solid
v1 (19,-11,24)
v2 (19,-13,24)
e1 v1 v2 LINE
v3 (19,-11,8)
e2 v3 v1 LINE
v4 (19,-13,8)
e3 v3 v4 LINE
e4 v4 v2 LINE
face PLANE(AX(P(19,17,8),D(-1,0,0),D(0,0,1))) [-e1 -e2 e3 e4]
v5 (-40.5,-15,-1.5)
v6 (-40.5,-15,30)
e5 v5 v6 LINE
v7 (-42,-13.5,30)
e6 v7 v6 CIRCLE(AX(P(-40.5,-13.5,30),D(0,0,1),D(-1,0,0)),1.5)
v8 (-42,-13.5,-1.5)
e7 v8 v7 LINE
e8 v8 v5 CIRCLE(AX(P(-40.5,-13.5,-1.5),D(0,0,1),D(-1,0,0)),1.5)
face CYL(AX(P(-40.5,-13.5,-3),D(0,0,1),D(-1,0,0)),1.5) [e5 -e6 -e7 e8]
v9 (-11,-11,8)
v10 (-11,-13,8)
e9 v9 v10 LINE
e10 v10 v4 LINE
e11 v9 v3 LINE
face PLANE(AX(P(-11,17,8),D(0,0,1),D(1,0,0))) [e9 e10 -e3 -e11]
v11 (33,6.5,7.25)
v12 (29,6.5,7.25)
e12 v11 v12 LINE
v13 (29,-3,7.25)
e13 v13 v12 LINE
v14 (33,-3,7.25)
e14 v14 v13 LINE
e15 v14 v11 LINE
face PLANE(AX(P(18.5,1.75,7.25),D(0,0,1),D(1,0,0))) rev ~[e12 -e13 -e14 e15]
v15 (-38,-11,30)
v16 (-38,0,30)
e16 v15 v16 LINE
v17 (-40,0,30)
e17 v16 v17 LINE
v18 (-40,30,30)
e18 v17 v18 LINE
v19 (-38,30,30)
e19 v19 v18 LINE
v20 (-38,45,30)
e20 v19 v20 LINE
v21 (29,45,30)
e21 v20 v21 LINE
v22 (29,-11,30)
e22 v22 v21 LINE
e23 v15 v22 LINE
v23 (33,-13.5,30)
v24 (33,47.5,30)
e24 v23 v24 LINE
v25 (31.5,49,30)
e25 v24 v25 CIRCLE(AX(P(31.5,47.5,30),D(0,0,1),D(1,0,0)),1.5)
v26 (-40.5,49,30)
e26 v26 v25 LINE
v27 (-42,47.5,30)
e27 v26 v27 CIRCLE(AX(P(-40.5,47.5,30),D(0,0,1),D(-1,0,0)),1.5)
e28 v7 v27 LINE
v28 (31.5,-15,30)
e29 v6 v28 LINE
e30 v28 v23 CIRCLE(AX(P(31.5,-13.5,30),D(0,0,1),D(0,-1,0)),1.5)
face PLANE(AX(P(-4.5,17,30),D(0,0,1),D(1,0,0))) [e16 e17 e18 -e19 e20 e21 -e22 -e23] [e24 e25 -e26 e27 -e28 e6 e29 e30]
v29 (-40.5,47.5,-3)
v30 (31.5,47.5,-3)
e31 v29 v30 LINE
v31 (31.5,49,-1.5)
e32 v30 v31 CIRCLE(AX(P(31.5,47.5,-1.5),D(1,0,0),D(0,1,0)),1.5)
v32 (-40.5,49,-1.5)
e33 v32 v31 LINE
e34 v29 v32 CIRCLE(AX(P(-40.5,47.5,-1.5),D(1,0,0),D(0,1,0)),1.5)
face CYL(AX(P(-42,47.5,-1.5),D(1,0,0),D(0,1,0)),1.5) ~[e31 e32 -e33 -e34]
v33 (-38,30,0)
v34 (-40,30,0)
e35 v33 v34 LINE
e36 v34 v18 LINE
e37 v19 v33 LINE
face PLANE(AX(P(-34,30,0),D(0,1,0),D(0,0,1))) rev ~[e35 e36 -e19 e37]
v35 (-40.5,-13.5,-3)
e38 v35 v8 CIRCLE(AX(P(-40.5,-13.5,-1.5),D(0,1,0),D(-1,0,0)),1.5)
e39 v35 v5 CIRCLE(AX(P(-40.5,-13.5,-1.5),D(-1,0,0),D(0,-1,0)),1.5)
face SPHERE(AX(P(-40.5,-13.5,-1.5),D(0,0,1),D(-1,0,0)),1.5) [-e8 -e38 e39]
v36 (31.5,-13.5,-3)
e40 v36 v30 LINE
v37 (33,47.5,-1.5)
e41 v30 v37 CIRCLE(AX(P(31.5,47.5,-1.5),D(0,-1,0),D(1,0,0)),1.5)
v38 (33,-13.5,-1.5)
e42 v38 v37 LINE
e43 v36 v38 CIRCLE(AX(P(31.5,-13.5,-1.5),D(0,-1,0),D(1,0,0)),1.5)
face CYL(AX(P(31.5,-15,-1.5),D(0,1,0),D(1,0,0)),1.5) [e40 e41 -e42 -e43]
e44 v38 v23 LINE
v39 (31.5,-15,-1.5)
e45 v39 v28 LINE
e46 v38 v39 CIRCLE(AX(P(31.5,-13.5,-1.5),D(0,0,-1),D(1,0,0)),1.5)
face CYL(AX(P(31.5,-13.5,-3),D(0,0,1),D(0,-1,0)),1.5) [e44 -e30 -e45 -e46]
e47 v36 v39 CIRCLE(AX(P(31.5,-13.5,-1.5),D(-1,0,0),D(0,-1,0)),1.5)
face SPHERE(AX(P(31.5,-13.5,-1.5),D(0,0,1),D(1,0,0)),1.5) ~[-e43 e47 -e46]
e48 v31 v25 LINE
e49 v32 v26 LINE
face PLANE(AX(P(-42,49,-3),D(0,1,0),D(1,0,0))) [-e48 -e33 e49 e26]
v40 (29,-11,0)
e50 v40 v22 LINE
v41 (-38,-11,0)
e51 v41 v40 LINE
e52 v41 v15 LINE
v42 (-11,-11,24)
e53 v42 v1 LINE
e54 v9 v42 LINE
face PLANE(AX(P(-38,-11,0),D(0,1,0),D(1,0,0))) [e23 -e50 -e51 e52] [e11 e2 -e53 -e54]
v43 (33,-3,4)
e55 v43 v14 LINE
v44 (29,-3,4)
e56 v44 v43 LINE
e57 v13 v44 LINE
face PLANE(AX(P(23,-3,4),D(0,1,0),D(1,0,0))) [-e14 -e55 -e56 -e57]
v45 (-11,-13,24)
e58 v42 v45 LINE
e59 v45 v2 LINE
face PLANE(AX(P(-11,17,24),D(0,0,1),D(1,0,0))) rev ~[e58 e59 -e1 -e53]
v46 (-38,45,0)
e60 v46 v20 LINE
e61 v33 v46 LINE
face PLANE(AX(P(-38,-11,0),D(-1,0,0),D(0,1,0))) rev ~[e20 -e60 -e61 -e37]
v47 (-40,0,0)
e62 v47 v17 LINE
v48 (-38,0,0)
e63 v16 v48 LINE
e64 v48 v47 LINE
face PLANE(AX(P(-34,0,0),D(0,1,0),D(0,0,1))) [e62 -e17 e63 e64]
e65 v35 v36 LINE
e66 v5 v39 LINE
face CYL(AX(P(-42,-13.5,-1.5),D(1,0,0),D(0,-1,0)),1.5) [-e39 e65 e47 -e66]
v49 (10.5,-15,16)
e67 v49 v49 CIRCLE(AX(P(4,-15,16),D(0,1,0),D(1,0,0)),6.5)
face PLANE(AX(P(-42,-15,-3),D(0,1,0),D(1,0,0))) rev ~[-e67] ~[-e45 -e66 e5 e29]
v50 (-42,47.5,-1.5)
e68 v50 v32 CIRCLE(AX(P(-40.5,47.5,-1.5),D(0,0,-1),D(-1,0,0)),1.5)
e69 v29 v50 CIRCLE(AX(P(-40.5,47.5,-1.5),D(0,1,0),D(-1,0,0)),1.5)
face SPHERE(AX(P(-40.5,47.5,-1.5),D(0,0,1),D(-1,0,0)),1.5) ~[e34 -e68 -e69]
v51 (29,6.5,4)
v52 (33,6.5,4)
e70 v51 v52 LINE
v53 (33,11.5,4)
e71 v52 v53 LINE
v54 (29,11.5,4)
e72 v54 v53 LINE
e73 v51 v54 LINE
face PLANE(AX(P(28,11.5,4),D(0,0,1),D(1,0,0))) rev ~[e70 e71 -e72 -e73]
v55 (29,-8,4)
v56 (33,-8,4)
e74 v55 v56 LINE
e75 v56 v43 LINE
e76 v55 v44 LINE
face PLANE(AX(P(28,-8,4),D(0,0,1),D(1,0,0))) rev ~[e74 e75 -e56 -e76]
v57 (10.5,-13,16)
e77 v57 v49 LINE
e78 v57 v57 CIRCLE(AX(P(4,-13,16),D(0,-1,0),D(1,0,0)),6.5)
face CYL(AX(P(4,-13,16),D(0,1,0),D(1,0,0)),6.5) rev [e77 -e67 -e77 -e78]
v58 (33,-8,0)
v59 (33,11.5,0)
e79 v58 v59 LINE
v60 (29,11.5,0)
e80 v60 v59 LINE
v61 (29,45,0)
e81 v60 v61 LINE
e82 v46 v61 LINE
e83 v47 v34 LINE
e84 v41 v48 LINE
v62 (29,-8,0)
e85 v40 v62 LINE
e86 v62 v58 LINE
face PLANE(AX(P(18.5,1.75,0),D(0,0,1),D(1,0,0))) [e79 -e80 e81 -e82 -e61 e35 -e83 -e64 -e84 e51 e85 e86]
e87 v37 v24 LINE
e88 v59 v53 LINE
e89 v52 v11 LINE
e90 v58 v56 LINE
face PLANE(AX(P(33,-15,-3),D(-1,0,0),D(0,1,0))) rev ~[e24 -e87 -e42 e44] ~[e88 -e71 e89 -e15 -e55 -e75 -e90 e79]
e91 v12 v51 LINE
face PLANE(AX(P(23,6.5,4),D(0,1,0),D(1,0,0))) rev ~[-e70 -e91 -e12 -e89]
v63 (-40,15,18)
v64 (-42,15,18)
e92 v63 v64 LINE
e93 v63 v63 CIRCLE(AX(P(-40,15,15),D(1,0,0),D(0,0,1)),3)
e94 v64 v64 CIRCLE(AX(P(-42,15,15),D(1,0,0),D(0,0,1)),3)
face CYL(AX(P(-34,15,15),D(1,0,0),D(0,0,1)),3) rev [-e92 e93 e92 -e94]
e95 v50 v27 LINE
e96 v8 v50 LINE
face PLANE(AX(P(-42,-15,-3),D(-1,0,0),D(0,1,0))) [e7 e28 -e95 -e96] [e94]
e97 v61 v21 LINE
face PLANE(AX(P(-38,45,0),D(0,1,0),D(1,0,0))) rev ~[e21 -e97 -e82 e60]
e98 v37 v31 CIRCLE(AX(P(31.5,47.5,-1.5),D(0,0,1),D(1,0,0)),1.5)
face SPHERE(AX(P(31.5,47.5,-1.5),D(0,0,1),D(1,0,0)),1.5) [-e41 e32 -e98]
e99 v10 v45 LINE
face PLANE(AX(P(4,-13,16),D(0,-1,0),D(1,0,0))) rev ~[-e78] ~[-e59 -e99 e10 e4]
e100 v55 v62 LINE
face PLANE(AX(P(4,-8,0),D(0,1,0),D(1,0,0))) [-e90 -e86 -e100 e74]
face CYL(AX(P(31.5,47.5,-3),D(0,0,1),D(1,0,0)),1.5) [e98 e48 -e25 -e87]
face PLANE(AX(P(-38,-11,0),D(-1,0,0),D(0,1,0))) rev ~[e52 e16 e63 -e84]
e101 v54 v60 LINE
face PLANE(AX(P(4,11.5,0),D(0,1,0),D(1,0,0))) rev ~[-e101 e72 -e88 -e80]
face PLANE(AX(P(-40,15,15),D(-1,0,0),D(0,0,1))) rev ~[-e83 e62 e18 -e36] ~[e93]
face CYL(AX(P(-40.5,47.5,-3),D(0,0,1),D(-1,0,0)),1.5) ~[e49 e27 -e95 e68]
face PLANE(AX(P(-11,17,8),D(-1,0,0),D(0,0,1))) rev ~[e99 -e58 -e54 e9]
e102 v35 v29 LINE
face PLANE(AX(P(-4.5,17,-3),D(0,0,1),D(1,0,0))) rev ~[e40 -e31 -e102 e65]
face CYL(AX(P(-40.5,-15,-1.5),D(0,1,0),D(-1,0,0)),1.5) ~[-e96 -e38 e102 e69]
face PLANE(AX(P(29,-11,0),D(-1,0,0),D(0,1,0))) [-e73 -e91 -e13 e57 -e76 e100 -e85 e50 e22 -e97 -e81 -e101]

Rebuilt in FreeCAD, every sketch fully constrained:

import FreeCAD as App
import Part
import Sketcher
from FreeCAD import Vector
Q = App.Units.Quantity


def add_polygon(sketch, points):
    """Adds a closed chain of lines whose ends are joined by coincident constraints."""
    first, n = sketch.GeometryCount, len(points)
    for a, b in zip(points, points[1:] + points[:1]):
        sketch.addGeometry(Part.LineSegment(App.Vector(*a, 0), App.Vector(*b, 0)), False)
    for i in range(n):
        sketch.addConstraint(Sketcher.Constraint("Coincident", first + i, 2, first + (i + 1) % n, 1))

doc = App.newDocument("Part")
body = doc.addObject("PartDesign::Body", "Body")

sketch1 = body.newObject("Sketcher::SketchObject", "Sketch")
sketch1.AttachmentSupport = (doc.getObject("XY_Plane"), [""])
sketch1.MapMode = "FlatFace"
sketch1.addGeometry(Part.Circle(Vector(15, 15, 0), Vector(0, 0, 1), 3), False)
sketch1.addConstraint([
    Sketcher.Constraint("Diameter", 0, Q("6 mm")),
    Sketcher.Constraint("DistanceX", -1, 1, 0, 3, Q("15 mm")),
    Sketcher.Constraint("DistanceY", -1, 1, 0, 3, Q("15 mm")),
])
pad1 = body.newObject("PartDesign::Pad", "Pad")
pad1.Profile = sketch1
pad1.Length = 10
body2 = doc.addObject("PartDesign::Body", "Body001")

sketch2 = body2.newObject("Sketcher::SketchObject", "Sketch001")
sketch2.AttachmentSupport = (doc.getObject("XY_Plane001"), [""])
sketch2.MapMode = "FlatFace"
add_polygon(sketch2, [(0, 30), (0, 0), (30, 0), (30, 30)])
sketch2.addConstraint([
    Sketcher.Constraint("Vertical", 0),
    Sketcher.Constraint("Horizontal", 1),
    Sketcher.Constraint("Vertical", 2),
    Sketcher.Constraint("Horizontal", 3),
    Sketcher.Constraint("Coincident", 0, 2, -1, 1),
    Sketcher.Constraint("Equal", 3, 0),
    Sketcher.Constraint("DistanceX", 1, 1, 1, 2, Q("30 mm")),
])
pad2 = body2.newObject("PartDesign::Pad", "Pad001")
pad2.Profile = sketch2
pad2.Length = 6
doc.recompute()

boolean = body2.newObject("PartDesign::Boolean", "Boolean")
boolean.Type = "Fuse"
boolean.addObjects([body])
body3 = doc.addObject("PartDesign::Body", "Body002")
doc.recompute()

body2.Placement = App.Placement(Vector(-34, 0, 0), App.Rotation(Vector(0, 1, 0), 270))
boolean2 = body3.newObject("PartDesign::Boolean", "Boolean001")
boolean2.Type = "Fuse"
boolean2.addObjects([body2])
body4 = doc.addObject("PartDesign::Body", "Body003")

sketch3 = body4.newObject("Sketcher::SketchObject", "Sketch002")
sketch3.AttachmentSupport = (doc.getObject("XY_Plane003"), [""])
sketch3.MapMode = "FlatFace"
add_polygon(sketch3, [(-30, 11), (-30, -7), (-2, -7), (-2, 11)])
sketch3.addConstraint([
    Sketcher.Constraint("Vertical", 0),
    Sketcher.Constraint("Horizontal", 1),
    Sketcher.Constraint("Vertical", 2),
    Sketcher.Constraint("Horizontal", 3),
    Sketcher.Constraint("DistanceX", 1, 1, 1, 2, Q("28 mm")),
    Sketcher.Constraint("DistanceY", 0, 2, 0, 1, Q("18 mm")),
    Sketcher.Constraint("DistanceX", 0, 2, -1, 1, Q("30 mm")),
    Sketcher.Constraint("DistanceY", 0, 2, -1, 1, Q("7 mm")),
])
pad3 = body4.newObject("PartDesign::Pad", "Pad002")
pad3.Profile = sketch3
pad3.Length = 12.2
body5 = doc.addObject("PartDesign::Body", "Body004")

sketch4 = body5.newObject("Sketcher::SketchObject", "Sketch003")
sketch4.AttachmentSupport = (doc.getObject("XY_Plane004"), [""])
sketch4.MapMode = "FlatFace"
sketch4.AttachmentOffset = App.Placement(Vector(0, 0, 4), App.Rotation())
add_polygon(sketch4, [(19, 24), (19, 14), (29, 14), (29, 24)])
sketch4.addConstraint([
    Sketcher.Constraint("Vertical", 0),
    Sketcher.Constraint("Horizontal", 1),
    Sketcher.Constraint("Vertical", 2),
    Sketcher.Constraint("Horizontal", 3),
    Sketcher.Constraint("Equal", 3, 0),
    Sketcher.Constraint("DistanceX", 1, 1, 1, 2, Q("10 mm")),
    Sketcher.Constraint("DistanceX", -1, 1, 0, 2, Q("19 mm")),
    Sketcher.Constraint("DistanceY", -1, 1, 0, 2, Q("14.5 mm")),
])
pad4 = body5.newObject("PartDesign::Pad", "Pad003")
pad4.Profile = sketch4
pad4.Length = 10
body6 = doc.addObject("PartDesign::Body", "Body005")

sketch5 = body6.newObject("Sketcher::SketchObject", "Sketch004")
sketch5.AttachmentSupport = (doc.getObject("XY_Plane005"), [""])
sketch5.MapMode = "FlatFace"
sketch5.AttachmentOffset = App.Placement(Vector(0, 0, 4), App.Rotation())
add_polygon(sketch5, [(19, 5), (19, -5), (29, -5), (29, 5)])
sketch5.addConstraint([
    Sketcher.Constraint("Vertical", 0),
    Sketcher.Constraint("Horizontal", 1),
    Sketcher.Constraint("Vertical", 2),
    Sketcher.Constraint("Horizontal", 3),
    Sketcher.Constraint("Equal", 3, 0),
    Sketcher.Constraint("DistanceX", 1, 1, 1, 2, Q("10 mm")),
    Sketcher.Constraint("DistanceX", -1, 1, 0, 2, Q("19 mm")),
    Sketcher.Constraint("DistanceY", 0, 2, -1, 1, Q("5 mm")),
])
pad5 = body6.newObject("PartDesign::Pad", "Pad004")
pad5.Profile = sketch5
pad5.Length = 10
body7 = doc.addObject("PartDesign::Body", "Body006")

sketch6 = body7.newObject("Sketcher::SketchObject", "Sketch005")
sketch6.AttachmentSupport = (doc.getObject("XY_Plane006"), [""])
sketch6.MapMode = "FlatFace"
sketch6.AttachmentOffset = App.Placement(Vector(0, 0, 1.75), App.Rotation())
add_polygon(sketch6, [(28, 14), (28, 6), (38, 6), (38, 14)])
sketch6.addConstraint([
    Sketcher.Constraint("Vertical", 0),
    Sketcher.Constraint("Horizontal", 1),
    Sketcher.Constraint("Vertical", 2),
    Sketcher.Constraint("Horizontal", 3),
    Sketcher.Constraint("DistanceX", 1, 1, 1, 2, Q("10 mm")),
    Sketcher.Constraint("DistanceY", 0, 2, 0, 1, Q("8 mm")),
    Sketcher.Constraint("DistanceX", -1, 1, 0, 2, Q("28 mm")),
    Sketcher.Constraint("DistanceY", -1, 1, 0, 2, Q("5.75 mm")),
])
pad6 = body7.newObject("PartDesign::Pad", "Pad005")
pad6.Profile = sketch6
pad6.Length = 4
body8 = doc.addObject("PartDesign::Body", "Body007")

sketch7 = body8.newObject("Sketcher::SketchObject", "Sketch006")
sketch7.AttachmentSupport = (doc.getObject("XY_Plane007"), [""])
sketch7.MapMode = "FlatFace"
add_polygon(sketch7, [(0, 20), (0, 0), (29, 0), (29, 20)])
sketch7.addConstraint([
    Sketcher.Constraint("Vertical", 0),
    Sketcher.Constraint("Horizontal", 1),
    Sketcher.Constraint("Vertical", 2),
    Sketcher.Constraint("Horizontal", 3),
    Sketcher.Constraint("Coincident", 0, 2, -1, 1),
    Sketcher.Constraint("DistanceX", 1, 1, 1, 2, Q("29 mm")),
    Sketcher.Constraint("DistanceY", 0, 2, 0, 1, Q("19.5 mm")),
])
pad7 = body8.newObject("PartDesign::Pad", "Pad006")
pad7.Profile = sketch7
pad7.Length = 7.25
doc.recompute()

boolean3 = body8.newObject("PartDesign::Boolean", "Boolean002")
boolean3.Type = "Fuse"
boolean3.addObjects([body7])
doc.recompute()

boolean4 = body8.newObject("PartDesign::Boolean", "Boolean003")
boolean4.Type = "Cut"
boolean4.addObjects([body6])
doc.recompute()

boolean5 = body8.newObject("PartDesign::Boolean", "Boolean004")
boolean5.Type = "Cut"
boolean5.addObjects([body5])
body9 = doc.addObject("PartDesign::Body", "Body008")
doc.recompute()

body8.Placement = App.Placement(Vector(4, -8, 0), App.Rotation(Vector(0, 0, 1), 0))
boolean6 = body9.newObject("PartDesign::Boolean", "Boolean005")
boolean6.Type = "Fuse"
boolean6.addObjects([body8])
body10 = doc.addObject("PartDesign::Body", "Body009")

sketch8 = body10.newObject("Sketcher::SketchObject", "Sketch007")
sketch8.AttachmentSupport = (doc.getObject("XY_Plane009"), [""])
sketch8.MapMode = "FlatFace"
sketch8.AttachmentOffset = App.Placement(Vector(0, 0, 19), App.Rotation())
sketch8.addGeometry(Part.Circle(Vector(0, 0, 0), Vector(0, 0, 1), 3.6), False)
sketch8.addConstraint([
    Sketcher.Constraint("Coincident", 0, 3, -1, 1),
    Sketcher.Constraint("Diameter", 0, Q("7.2 mm")),
])
pad8 = body10.newObject("PartDesign::Pad", "Pad007")
pad8.Profile = sketch8
pad8.Length = 6.7
body11 = doc.addObject("PartDesign::Body", "Body010")

sketch9 = body11.newObject("Sketcher::SketchObject", "Sketch008")
sketch9.AttachmentSupport = (doc.getObject("XY_Plane010"), [""])
sketch9.MapMode = "FlatFace"
sketch9.addGeometry(Part.Circle(Vector(0, 0, 0), Vector(0, 0, 1), 4.7), False)
sketch9.addConstraint([
    Sketcher.Constraint("Coincident", 0, 3, -1, 1),
    Sketcher.Constraint("Diameter", 0, Q("9.3 mm")),
])
pad9 = body11.newObject("PartDesign::Pad", "Pad008")
pad9.Profile = sketch9
pad9.Length = 19
doc.recompute()

boolean7 = body11.newObject("PartDesign::Boolean", "Boolean006")
boolean7.Type = "Fuse"
boolean7.addObjects([body10])
body12 = doc.addObject("PartDesign::Body", "Body011")
doc.recompute()

body11.Placement = App.Placement(Vector(3, 35, 12), App.Rotation(Vector(0, 0, 1), 0))
boolean8 = body12.newObject("PartDesign::Boolean", "Boolean007")
boolean8.Type = "Fuse"
boolean8.addObjects([body11])
body13 = doc.addObject("PartDesign::Body", "Body012")

sketch10 = body13.newObject("Sketcher::SketchObject", "Sketch009")
sketch10.AttachmentSupport = (doc.getObject("XY_Plane012"), [""])
sketch10.MapMode = "FlatFace"
sketch10.AttachmentOffset = App.Placement(Vector(0, 0, 19), App.Rotation())
sketch10.addGeometry(Part.Circle(Vector(0, 0, 0), Vector(0, 0, 1), 3.6), False)
sketch10.addConstraint([
    Sketcher.Constraint("Coincident", 0, 3, -1, 1),
    Sketcher.Constraint("Diameter", 0, Q("7.2 mm")),
])
pad10 = body13.newObject("PartDesign::Pad", "Pad009")
pad10.Profile = sketch10
pad10.Length = 6.7
body14 = doc.addObject("PartDesign::Body", "Body013")

sketch11 = body14.newObject("Sketcher::SketchObject", "Sketch010")
sketch11.AttachmentSupport = (doc.getObject("XY_Plane013"), [""])
sketch11.MapMode = "FlatFace"
sketch11.addGeometry(Part.Circle(Vector(0, 0, 0), Vector(0, 0, 1), 4.7), False)
sketch11.addConstraint([
    Sketcher.Constraint("Coincident", 0, 3, -1, 1),
    Sketcher.Constraint("Diameter", 0, Q("9.3 mm")),
])
pad11 = body14.newObject("PartDesign::Pad", "Pad010")
pad11.Profile = sketch11
pad11.Length = 19
doc.recompute()

boolean9 = body14.newObject("PartDesign::Boolean", "Boolean008")
boolean9.Type = "Fuse"
boolean9.addObjects([body13])
body15 = doc.addObject("PartDesign::Body", "Body014")
doc.recompute()

body14.Placement = App.Placement(Vector(20, 35, 12), App.Rotation(Vector(0, 0, 1), 0))
boolean10 = body15.newObject("PartDesign::Boolean", "Boolean009")
boolean10.Type = "Fuse"
boolean10.addObjects([body14])
body16 = doc.addObject("PartDesign::Body", "Body015")

sketch12 = body16.newObject("Sketcher::SketchObject", "Sketch011")
sketch12.AttachmentSupport = (doc.getObject("XY_Plane015"), [""])
sketch12.MapMode = "FlatFace"
add_polygon(sketch12, [(-22, 45), (-22, 18), (28, 18), (28, 45)])
sketch12.addConstraint([
    Sketcher.Constraint("Vertical", 0),
    Sketcher.Constraint("Horizontal", 1),
    Sketcher.Constraint("Vertical", 2),
    Sketcher.Constraint("Horizontal", 3),
    Sketcher.Constraint("DistanceX", 1, 1, 1, 2, Q("50 mm")),
    Sketcher.Constraint("DistanceY", 0, 2, 0, 1, Q("27 mm")),
    Sketcher.Constraint("DistanceX", 0, 2, -1, 1, Q("22 mm")),
    Sketcher.Constraint("DistanceY", -1, 1, 0, 2, Q("18 mm")),
])
pad12 = body16.newObject("PartDesign::Pad", "Pad011")
pad12.Profile = sketch12
pad12.Length = 12
body17 = doc.addObject("PartDesign::Body", "Body016")

sketch13 = body17.newObject("Sketcher::SketchObject", "Sketch012")
sketch13.AttachmentSupport = (doc.getObject("XY_Plane016"), [""])
sketch13.MapMode = "FlatFace"
sketch13.AttachmentOffset = App.Placement(Vector(0, 0, 6), App.Rotation())
add_polygon(sketch13, [(0, 26), (0, 2), (51, 2), (51, 26)])
sketch13.addConstraint([
    Sketcher.Constraint("Vertical", 0),
    Sketcher.Constraint("Horizontal", 1),
    Sketcher.Constraint("Vertical", 2),
    Sketcher.Constraint("Horizontal", 3),
    Sketcher.Constraint("PointOnObject", 0, 2, -2),
    Sketcher.Constraint("DistanceX", 1, 1, 1, 2, Q("51 mm")),
    Sketcher.Constraint("DistanceY", 0, 2, 0, 1, Q("24 mm")),
    Sketcher.Constraint("DistanceY", -1, 1, 0, 2, Q("2 mm")),
])
pad13 = body17.newObject("PartDesign::Pad", "Pad012")
pad13.Profile = sketch13
pad13.Length = 7
body18 = doc.addObject("PartDesign::Body", "Body017")

sketch14 = body18.newObject("Sketcher::SketchObject", "Sketch013")
sketch14.AttachmentSupport = (doc.getObject("XY_Plane017"), [""])
sketch14.MapMode = "FlatFace"
add_polygon(sketch14, [(0, 28), (0, 0), (51, 0), (51, 28)])
sketch14.addConstraint([
    Sketcher.Constraint("Vertical", 0),
    Sketcher.Constraint("Horizontal", 1),
    Sketcher.Constraint("Vertical", 2),
    Sketcher.Constraint("Horizontal", 3),
    Sketcher.Constraint("Coincident", 0, 2, -1, 1),
    Sketcher.Constraint("DistanceX", 1, 1, 1, 2, Q("51 mm")),
    Sketcher.Constraint("DistanceY", 0, 2, 0, 1, Q("28 mm")),
])
pad14 = body18.newObject("PartDesign::Pad", "Pad013")
pad14.Profile = sketch14
pad14.Length = 6
doc.recompute()

boolean11 = body18.newObject("PartDesign::Boolean", "Boolean010")
boolean11.Type = "Fuse"
boolean11.addObjects([body17])
body19 = doc.addObject("PartDesign::Body", "Body018")
doc.recompute()

body18.Placement = App.Placement(Vector(-5, -8, 25), App.Rotation(Vector(0, 0, 1), 90))
boolean12 = body19.newObject("PartDesign::Boolean", "Boolean011")
boolean12.Type = "Fuse"
boolean12.addObjects([body18])
body20 = doc.addObject("PartDesign::Body", "Body019")

sketch15 = body20.newObject("Sketcher::SketchObject", "Sketch014")
sketch15.AttachmentSupport = (doc.getObject("XY_Plane019"), [""])
sketch15.MapMode = "FlatFace"
sketch15.AttachmentOffset = App.Placement(Vector(0, 0, 30), App.Rotation())
sketch15.addGeometry(Part.Circle(Vector(15, 8, 0), Vector(0, 0, 1), 6), False)
sketch15.addConstraint([
    Sketcher.Constraint("Diameter", 0, Q("13 mm")),
    Sketcher.Constraint("DistanceX", -1, 1, 0, 3, Q("15 mm")),
    Sketcher.Constraint("DistanceY", -1, 1, 0, 3, Q("8 mm")),
])
pad15 = body20.newObject("PartDesign::Pad", "Pad014")
pad15.Profile = sketch15
pad15.Length = 9
body21 = doc.addObject("PartDesign::Body", "Body020")

sketch16 = body21.newObject("Sketcher::SketchObject", "Sketch015")
sketch16.AttachmentSupport = (doc.getObject("XY_Plane020"), [""])
sketch16.MapMode = "FlatFace"
add_polygon(sketch16, [(0, 16), (0, 0), (30, 0), (30, 16)])
sketch16.addConstraint([
    Sketcher.Constraint("Vertical", 0),
    Sketcher.Constraint("Horizontal", 1),
    Sketcher.Constraint("Vertical", 2),
    Sketcher.Constraint("Horizontal", 3),
    Sketcher.Constraint("Coincident", 0, 2, -1, 1),
    Sketcher.Constraint("DistanceX", 1, 1, 1, 2, Q("30 mm")),
    Sketcher.Constraint("DistanceY", 0, 2, 0, 1, Q("16 mm")),
])
pad16 = body21.newObject("PartDesign::Pad", "Pad015")
pad16.Profile = sketch16
pad16.Length = 30
doc.recompute()

boolean13 = body21.newObject("PartDesign::Boolean", "Boolean012")
boolean13.Type = "Fuse"
boolean13.addObjects([body20])
body22 = doc.addObject("PartDesign::Body", "Body021")
doc.recompute()

body21.Placement = App.Placement(Vector(-11, 17, 8), App.Rotation(Vector(1, 0, 0), 90))
boolean14 = body22.newObject("PartDesign::Boolean", "Boolean013")
boolean14.Type = "Fuse"
boolean14.addObjects([body21])
body23 = doc.addObject("PartDesign::Body", "Body022")
body23.AllowCompound = True

sketch17 = body23.newObject("Sketcher::SketchObject", "Sketch016")
sketch17.AttachmentSupport = (doc.getObject("XY_Plane022"), [""])
sketch17.MapMode = "FlatFace"
sketch17.AttachmentOffset = App.Placement(Vector(0, 0, 12), App.Rotation())
add_polygon(sketch17, [(-35, 34), (-35, 19), (-8, 19), (-8, 34)])
sketch17.addConstraint([
    Sketcher.Constraint("Vertical", 0),
    Sketcher.Constraint("Horizontal", 1),
    Sketcher.Constraint("Vertical", 2),
    Sketcher.Constraint("Horizontal", 3),
    Sketcher.Constraint("DistanceX", 1, 1, 1, 2, Q("27 mm")),
    Sketcher.Constraint("DistanceY", 0, 2, 0, 1, Q("15.5 mm")),
    Sketcher.Constraint("DistanceX", 0, 2, -1, 1, Q("35 mm")),
    Sketcher.Constraint("DistanceY", -1, 1, 0, 2, Q("19 mm")),
])
pad17 = body23.newObject("PartDesign::Pad", "Pad016")
pad17.Profile = sketch17
pad17.Length = 3.5
doc.recompute()

boolean15 = body23.newObject("PartDesign::Boolean", "Boolean014")
boolean15.Type = "Fuse"
boolean15.addObjects([body3])
doc.recompute()

boolean16 = body23.newObject("PartDesign::Boolean", "Boolean015")
boolean16.Type = "Fuse"
boolean16.addObjects([body4])
doc.recompute()

boolean17 = body23.newObject("PartDesign::Boolean", "Boolean016")
boolean17.Type = "Fuse"
boolean17.addObjects([body9])
doc.recompute()

boolean18 = body23.newObject("PartDesign::Boolean", "Boolean017")
boolean18.Type = "Fuse"
boolean18.addObjects([body12])
doc.recompute()

boolean19 = body23.newObject("PartDesign::Boolean", "Boolean018")
boolean19.Type = "Fuse"
boolean19.addObjects([body15])
doc.recompute()

boolean20 = body23.newObject("PartDesign::Boolean", "Boolean019")
boolean20.Type = "Fuse"
boolean20.addObjects([body16])
doc.recompute()

boolean21 = body23.newObject("PartDesign::Boolean", "Boolean020")
boolean21.Type = "Fuse"
boolean21.addObjects([body19])
doc.recompute()

boolean22 = body23.newObject("PartDesign::Boolean", "Boolean021")
boolean22.Type = "Fuse"
boolean22.addObjects([body22])
body24 = doc.addObject("PartDesign::Body", "Body023")

sketch18 = body24.newObject("Sketcher::SketchObject", "Sketch017")
sketch18.AttachmentSupport = (doc.getObject("XY_Plane023"), [""])
sketch18.MapMode = "FlatFace"
sketch18.AttachmentOffset = App.Placement(Vector(0, 0, 30), App.Rotation())
add_polygon(sketch18, [(-42, 49), (-42, -15), (33, -15), (33, 49)])
sketch18.addConstraint([
    Sketcher.Constraint("Vertical", 0),
    Sketcher.Constraint("Horizontal", 1),
    Sketcher.Constraint("Vertical", 2),
    Sketcher.Constraint("Horizontal", 3),
    Sketcher.Constraint("DistanceX", 1, 1, 1, 2, Q("75 mm")),
    Sketcher.Constraint("DistanceY", 0, 2, 0, 1, Q("64 mm")),
    Sketcher.Constraint("DistanceX", 0, 2, -1, 1, Q("42 mm")),
    Sketcher.Constraint("DistanceY", 0, 2, -1, 1, Q("15 mm")),
])
pad18 = body24.newObject("PartDesign::Pad", "Pad017")
pad18.Profile = sketch18
pad18.Length = 4
body25 = doc.addObject("PartDesign::Body", "Body024")

sketch19 = body25.newObject("Sketcher::SketchObject", "Sketch018")
sketch19.AttachmentSupport = (doc.getObject("XY_Plane024"), [""])
sketch19.MapMode = "FlatFace"
add_polygon(sketch19, [(-38, 45), (-38, -11), (29, -11), (29, 45)])
sketch19.addConstraint([
    Sketcher.Constraint("Vertical", 0),
    Sketcher.Constraint("Horizontal", 1),
    Sketcher.Constraint("Vertical", 2),
    Sketcher.Constraint("Horizontal", 3),
    Sketcher.Constraint("DistanceX", 1, 1, 1, 2, Q("67 mm")),
    Sketcher.Constraint("DistanceY", 0, 2, 0, 1, Q("56 mm")),
    Sketcher.Constraint("DistanceX", 0, 2, -1, 1, Q("38 mm")),
    Sketcher.Constraint("DistanceY", 0, 2, -1, 1, Q("11 mm")),
])
pad19 = body25.newObject("PartDesign::Pad", "Pad018")
pad19.Profile = sketch19
pad19.Length = 30
body26 = doc.addObject("PartDesign::Body", "Body025")

sketch20 = body26.newObject("Sketcher::SketchObject", "Sketch019")
sketch20.AttachmentSupport = (doc.getObject("XY_Plane025"), [""])
sketch20.MapMode = "FlatFace"
sketch20.AttachmentOffset = App.Placement(Vector(0, 0, -3), App.Rotation())
add_polygon(sketch20, [(-42, 49), (-42, -15), (33, -15), (33, 49)])
sketch20.addConstraint([
    Sketcher.Constraint("Vertical", 0),
    Sketcher.Constraint("Horizontal", 1),
    Sketcher.Constraint("Vertical", 2),
    Sketcher.Constraint("Horizontal", 3),
    Sketcher.Constraint("DistanceX", 1, 1, 1, 2, Q("75 mm")),
    Sketcher.Constraint("DistanceY", 0, 2, 0, 1, Q("64 mm")),
    Sketcher.Constraint("DistanceX", 0, 2, -1, 1, Q("42 mm")),
    Sketcher.Constraint("DistanceY", 0, 2, -1, 1, Q("15 mm")),
])
pad20 = body26.newObject("PartDesign::Pad", "Pad019")
pad20.Profile = sketch20
pad20.Length = 36
doc.recompute()

fillet = body26.newObject("PartDesign::Fillet", "Fillet")
fillet.Base = (pad20, ["Edge1"])
fillet.UseAllEdges = True
fillet.Radius = 1.5
doc.recompute()

boolean23 = body26.newObject("PartDesign::Boolean", "Boolean022")
boolean23.Type = "Cut"
boolean23.addObjects([body25])
doc.recompute()

boolean24 = body26.newObject("PartDesign::Boolean", "Boolean023")
boolean24.Type = "Cut"
boolean24.addObjects([body24])
doc.recompute()

boolean25 = body26.newObject("PartDesign::Boolean", "Boolean024")
boolean25.Type = "Cut"
boolean25.addObjects([body23])

doc.recompute()
